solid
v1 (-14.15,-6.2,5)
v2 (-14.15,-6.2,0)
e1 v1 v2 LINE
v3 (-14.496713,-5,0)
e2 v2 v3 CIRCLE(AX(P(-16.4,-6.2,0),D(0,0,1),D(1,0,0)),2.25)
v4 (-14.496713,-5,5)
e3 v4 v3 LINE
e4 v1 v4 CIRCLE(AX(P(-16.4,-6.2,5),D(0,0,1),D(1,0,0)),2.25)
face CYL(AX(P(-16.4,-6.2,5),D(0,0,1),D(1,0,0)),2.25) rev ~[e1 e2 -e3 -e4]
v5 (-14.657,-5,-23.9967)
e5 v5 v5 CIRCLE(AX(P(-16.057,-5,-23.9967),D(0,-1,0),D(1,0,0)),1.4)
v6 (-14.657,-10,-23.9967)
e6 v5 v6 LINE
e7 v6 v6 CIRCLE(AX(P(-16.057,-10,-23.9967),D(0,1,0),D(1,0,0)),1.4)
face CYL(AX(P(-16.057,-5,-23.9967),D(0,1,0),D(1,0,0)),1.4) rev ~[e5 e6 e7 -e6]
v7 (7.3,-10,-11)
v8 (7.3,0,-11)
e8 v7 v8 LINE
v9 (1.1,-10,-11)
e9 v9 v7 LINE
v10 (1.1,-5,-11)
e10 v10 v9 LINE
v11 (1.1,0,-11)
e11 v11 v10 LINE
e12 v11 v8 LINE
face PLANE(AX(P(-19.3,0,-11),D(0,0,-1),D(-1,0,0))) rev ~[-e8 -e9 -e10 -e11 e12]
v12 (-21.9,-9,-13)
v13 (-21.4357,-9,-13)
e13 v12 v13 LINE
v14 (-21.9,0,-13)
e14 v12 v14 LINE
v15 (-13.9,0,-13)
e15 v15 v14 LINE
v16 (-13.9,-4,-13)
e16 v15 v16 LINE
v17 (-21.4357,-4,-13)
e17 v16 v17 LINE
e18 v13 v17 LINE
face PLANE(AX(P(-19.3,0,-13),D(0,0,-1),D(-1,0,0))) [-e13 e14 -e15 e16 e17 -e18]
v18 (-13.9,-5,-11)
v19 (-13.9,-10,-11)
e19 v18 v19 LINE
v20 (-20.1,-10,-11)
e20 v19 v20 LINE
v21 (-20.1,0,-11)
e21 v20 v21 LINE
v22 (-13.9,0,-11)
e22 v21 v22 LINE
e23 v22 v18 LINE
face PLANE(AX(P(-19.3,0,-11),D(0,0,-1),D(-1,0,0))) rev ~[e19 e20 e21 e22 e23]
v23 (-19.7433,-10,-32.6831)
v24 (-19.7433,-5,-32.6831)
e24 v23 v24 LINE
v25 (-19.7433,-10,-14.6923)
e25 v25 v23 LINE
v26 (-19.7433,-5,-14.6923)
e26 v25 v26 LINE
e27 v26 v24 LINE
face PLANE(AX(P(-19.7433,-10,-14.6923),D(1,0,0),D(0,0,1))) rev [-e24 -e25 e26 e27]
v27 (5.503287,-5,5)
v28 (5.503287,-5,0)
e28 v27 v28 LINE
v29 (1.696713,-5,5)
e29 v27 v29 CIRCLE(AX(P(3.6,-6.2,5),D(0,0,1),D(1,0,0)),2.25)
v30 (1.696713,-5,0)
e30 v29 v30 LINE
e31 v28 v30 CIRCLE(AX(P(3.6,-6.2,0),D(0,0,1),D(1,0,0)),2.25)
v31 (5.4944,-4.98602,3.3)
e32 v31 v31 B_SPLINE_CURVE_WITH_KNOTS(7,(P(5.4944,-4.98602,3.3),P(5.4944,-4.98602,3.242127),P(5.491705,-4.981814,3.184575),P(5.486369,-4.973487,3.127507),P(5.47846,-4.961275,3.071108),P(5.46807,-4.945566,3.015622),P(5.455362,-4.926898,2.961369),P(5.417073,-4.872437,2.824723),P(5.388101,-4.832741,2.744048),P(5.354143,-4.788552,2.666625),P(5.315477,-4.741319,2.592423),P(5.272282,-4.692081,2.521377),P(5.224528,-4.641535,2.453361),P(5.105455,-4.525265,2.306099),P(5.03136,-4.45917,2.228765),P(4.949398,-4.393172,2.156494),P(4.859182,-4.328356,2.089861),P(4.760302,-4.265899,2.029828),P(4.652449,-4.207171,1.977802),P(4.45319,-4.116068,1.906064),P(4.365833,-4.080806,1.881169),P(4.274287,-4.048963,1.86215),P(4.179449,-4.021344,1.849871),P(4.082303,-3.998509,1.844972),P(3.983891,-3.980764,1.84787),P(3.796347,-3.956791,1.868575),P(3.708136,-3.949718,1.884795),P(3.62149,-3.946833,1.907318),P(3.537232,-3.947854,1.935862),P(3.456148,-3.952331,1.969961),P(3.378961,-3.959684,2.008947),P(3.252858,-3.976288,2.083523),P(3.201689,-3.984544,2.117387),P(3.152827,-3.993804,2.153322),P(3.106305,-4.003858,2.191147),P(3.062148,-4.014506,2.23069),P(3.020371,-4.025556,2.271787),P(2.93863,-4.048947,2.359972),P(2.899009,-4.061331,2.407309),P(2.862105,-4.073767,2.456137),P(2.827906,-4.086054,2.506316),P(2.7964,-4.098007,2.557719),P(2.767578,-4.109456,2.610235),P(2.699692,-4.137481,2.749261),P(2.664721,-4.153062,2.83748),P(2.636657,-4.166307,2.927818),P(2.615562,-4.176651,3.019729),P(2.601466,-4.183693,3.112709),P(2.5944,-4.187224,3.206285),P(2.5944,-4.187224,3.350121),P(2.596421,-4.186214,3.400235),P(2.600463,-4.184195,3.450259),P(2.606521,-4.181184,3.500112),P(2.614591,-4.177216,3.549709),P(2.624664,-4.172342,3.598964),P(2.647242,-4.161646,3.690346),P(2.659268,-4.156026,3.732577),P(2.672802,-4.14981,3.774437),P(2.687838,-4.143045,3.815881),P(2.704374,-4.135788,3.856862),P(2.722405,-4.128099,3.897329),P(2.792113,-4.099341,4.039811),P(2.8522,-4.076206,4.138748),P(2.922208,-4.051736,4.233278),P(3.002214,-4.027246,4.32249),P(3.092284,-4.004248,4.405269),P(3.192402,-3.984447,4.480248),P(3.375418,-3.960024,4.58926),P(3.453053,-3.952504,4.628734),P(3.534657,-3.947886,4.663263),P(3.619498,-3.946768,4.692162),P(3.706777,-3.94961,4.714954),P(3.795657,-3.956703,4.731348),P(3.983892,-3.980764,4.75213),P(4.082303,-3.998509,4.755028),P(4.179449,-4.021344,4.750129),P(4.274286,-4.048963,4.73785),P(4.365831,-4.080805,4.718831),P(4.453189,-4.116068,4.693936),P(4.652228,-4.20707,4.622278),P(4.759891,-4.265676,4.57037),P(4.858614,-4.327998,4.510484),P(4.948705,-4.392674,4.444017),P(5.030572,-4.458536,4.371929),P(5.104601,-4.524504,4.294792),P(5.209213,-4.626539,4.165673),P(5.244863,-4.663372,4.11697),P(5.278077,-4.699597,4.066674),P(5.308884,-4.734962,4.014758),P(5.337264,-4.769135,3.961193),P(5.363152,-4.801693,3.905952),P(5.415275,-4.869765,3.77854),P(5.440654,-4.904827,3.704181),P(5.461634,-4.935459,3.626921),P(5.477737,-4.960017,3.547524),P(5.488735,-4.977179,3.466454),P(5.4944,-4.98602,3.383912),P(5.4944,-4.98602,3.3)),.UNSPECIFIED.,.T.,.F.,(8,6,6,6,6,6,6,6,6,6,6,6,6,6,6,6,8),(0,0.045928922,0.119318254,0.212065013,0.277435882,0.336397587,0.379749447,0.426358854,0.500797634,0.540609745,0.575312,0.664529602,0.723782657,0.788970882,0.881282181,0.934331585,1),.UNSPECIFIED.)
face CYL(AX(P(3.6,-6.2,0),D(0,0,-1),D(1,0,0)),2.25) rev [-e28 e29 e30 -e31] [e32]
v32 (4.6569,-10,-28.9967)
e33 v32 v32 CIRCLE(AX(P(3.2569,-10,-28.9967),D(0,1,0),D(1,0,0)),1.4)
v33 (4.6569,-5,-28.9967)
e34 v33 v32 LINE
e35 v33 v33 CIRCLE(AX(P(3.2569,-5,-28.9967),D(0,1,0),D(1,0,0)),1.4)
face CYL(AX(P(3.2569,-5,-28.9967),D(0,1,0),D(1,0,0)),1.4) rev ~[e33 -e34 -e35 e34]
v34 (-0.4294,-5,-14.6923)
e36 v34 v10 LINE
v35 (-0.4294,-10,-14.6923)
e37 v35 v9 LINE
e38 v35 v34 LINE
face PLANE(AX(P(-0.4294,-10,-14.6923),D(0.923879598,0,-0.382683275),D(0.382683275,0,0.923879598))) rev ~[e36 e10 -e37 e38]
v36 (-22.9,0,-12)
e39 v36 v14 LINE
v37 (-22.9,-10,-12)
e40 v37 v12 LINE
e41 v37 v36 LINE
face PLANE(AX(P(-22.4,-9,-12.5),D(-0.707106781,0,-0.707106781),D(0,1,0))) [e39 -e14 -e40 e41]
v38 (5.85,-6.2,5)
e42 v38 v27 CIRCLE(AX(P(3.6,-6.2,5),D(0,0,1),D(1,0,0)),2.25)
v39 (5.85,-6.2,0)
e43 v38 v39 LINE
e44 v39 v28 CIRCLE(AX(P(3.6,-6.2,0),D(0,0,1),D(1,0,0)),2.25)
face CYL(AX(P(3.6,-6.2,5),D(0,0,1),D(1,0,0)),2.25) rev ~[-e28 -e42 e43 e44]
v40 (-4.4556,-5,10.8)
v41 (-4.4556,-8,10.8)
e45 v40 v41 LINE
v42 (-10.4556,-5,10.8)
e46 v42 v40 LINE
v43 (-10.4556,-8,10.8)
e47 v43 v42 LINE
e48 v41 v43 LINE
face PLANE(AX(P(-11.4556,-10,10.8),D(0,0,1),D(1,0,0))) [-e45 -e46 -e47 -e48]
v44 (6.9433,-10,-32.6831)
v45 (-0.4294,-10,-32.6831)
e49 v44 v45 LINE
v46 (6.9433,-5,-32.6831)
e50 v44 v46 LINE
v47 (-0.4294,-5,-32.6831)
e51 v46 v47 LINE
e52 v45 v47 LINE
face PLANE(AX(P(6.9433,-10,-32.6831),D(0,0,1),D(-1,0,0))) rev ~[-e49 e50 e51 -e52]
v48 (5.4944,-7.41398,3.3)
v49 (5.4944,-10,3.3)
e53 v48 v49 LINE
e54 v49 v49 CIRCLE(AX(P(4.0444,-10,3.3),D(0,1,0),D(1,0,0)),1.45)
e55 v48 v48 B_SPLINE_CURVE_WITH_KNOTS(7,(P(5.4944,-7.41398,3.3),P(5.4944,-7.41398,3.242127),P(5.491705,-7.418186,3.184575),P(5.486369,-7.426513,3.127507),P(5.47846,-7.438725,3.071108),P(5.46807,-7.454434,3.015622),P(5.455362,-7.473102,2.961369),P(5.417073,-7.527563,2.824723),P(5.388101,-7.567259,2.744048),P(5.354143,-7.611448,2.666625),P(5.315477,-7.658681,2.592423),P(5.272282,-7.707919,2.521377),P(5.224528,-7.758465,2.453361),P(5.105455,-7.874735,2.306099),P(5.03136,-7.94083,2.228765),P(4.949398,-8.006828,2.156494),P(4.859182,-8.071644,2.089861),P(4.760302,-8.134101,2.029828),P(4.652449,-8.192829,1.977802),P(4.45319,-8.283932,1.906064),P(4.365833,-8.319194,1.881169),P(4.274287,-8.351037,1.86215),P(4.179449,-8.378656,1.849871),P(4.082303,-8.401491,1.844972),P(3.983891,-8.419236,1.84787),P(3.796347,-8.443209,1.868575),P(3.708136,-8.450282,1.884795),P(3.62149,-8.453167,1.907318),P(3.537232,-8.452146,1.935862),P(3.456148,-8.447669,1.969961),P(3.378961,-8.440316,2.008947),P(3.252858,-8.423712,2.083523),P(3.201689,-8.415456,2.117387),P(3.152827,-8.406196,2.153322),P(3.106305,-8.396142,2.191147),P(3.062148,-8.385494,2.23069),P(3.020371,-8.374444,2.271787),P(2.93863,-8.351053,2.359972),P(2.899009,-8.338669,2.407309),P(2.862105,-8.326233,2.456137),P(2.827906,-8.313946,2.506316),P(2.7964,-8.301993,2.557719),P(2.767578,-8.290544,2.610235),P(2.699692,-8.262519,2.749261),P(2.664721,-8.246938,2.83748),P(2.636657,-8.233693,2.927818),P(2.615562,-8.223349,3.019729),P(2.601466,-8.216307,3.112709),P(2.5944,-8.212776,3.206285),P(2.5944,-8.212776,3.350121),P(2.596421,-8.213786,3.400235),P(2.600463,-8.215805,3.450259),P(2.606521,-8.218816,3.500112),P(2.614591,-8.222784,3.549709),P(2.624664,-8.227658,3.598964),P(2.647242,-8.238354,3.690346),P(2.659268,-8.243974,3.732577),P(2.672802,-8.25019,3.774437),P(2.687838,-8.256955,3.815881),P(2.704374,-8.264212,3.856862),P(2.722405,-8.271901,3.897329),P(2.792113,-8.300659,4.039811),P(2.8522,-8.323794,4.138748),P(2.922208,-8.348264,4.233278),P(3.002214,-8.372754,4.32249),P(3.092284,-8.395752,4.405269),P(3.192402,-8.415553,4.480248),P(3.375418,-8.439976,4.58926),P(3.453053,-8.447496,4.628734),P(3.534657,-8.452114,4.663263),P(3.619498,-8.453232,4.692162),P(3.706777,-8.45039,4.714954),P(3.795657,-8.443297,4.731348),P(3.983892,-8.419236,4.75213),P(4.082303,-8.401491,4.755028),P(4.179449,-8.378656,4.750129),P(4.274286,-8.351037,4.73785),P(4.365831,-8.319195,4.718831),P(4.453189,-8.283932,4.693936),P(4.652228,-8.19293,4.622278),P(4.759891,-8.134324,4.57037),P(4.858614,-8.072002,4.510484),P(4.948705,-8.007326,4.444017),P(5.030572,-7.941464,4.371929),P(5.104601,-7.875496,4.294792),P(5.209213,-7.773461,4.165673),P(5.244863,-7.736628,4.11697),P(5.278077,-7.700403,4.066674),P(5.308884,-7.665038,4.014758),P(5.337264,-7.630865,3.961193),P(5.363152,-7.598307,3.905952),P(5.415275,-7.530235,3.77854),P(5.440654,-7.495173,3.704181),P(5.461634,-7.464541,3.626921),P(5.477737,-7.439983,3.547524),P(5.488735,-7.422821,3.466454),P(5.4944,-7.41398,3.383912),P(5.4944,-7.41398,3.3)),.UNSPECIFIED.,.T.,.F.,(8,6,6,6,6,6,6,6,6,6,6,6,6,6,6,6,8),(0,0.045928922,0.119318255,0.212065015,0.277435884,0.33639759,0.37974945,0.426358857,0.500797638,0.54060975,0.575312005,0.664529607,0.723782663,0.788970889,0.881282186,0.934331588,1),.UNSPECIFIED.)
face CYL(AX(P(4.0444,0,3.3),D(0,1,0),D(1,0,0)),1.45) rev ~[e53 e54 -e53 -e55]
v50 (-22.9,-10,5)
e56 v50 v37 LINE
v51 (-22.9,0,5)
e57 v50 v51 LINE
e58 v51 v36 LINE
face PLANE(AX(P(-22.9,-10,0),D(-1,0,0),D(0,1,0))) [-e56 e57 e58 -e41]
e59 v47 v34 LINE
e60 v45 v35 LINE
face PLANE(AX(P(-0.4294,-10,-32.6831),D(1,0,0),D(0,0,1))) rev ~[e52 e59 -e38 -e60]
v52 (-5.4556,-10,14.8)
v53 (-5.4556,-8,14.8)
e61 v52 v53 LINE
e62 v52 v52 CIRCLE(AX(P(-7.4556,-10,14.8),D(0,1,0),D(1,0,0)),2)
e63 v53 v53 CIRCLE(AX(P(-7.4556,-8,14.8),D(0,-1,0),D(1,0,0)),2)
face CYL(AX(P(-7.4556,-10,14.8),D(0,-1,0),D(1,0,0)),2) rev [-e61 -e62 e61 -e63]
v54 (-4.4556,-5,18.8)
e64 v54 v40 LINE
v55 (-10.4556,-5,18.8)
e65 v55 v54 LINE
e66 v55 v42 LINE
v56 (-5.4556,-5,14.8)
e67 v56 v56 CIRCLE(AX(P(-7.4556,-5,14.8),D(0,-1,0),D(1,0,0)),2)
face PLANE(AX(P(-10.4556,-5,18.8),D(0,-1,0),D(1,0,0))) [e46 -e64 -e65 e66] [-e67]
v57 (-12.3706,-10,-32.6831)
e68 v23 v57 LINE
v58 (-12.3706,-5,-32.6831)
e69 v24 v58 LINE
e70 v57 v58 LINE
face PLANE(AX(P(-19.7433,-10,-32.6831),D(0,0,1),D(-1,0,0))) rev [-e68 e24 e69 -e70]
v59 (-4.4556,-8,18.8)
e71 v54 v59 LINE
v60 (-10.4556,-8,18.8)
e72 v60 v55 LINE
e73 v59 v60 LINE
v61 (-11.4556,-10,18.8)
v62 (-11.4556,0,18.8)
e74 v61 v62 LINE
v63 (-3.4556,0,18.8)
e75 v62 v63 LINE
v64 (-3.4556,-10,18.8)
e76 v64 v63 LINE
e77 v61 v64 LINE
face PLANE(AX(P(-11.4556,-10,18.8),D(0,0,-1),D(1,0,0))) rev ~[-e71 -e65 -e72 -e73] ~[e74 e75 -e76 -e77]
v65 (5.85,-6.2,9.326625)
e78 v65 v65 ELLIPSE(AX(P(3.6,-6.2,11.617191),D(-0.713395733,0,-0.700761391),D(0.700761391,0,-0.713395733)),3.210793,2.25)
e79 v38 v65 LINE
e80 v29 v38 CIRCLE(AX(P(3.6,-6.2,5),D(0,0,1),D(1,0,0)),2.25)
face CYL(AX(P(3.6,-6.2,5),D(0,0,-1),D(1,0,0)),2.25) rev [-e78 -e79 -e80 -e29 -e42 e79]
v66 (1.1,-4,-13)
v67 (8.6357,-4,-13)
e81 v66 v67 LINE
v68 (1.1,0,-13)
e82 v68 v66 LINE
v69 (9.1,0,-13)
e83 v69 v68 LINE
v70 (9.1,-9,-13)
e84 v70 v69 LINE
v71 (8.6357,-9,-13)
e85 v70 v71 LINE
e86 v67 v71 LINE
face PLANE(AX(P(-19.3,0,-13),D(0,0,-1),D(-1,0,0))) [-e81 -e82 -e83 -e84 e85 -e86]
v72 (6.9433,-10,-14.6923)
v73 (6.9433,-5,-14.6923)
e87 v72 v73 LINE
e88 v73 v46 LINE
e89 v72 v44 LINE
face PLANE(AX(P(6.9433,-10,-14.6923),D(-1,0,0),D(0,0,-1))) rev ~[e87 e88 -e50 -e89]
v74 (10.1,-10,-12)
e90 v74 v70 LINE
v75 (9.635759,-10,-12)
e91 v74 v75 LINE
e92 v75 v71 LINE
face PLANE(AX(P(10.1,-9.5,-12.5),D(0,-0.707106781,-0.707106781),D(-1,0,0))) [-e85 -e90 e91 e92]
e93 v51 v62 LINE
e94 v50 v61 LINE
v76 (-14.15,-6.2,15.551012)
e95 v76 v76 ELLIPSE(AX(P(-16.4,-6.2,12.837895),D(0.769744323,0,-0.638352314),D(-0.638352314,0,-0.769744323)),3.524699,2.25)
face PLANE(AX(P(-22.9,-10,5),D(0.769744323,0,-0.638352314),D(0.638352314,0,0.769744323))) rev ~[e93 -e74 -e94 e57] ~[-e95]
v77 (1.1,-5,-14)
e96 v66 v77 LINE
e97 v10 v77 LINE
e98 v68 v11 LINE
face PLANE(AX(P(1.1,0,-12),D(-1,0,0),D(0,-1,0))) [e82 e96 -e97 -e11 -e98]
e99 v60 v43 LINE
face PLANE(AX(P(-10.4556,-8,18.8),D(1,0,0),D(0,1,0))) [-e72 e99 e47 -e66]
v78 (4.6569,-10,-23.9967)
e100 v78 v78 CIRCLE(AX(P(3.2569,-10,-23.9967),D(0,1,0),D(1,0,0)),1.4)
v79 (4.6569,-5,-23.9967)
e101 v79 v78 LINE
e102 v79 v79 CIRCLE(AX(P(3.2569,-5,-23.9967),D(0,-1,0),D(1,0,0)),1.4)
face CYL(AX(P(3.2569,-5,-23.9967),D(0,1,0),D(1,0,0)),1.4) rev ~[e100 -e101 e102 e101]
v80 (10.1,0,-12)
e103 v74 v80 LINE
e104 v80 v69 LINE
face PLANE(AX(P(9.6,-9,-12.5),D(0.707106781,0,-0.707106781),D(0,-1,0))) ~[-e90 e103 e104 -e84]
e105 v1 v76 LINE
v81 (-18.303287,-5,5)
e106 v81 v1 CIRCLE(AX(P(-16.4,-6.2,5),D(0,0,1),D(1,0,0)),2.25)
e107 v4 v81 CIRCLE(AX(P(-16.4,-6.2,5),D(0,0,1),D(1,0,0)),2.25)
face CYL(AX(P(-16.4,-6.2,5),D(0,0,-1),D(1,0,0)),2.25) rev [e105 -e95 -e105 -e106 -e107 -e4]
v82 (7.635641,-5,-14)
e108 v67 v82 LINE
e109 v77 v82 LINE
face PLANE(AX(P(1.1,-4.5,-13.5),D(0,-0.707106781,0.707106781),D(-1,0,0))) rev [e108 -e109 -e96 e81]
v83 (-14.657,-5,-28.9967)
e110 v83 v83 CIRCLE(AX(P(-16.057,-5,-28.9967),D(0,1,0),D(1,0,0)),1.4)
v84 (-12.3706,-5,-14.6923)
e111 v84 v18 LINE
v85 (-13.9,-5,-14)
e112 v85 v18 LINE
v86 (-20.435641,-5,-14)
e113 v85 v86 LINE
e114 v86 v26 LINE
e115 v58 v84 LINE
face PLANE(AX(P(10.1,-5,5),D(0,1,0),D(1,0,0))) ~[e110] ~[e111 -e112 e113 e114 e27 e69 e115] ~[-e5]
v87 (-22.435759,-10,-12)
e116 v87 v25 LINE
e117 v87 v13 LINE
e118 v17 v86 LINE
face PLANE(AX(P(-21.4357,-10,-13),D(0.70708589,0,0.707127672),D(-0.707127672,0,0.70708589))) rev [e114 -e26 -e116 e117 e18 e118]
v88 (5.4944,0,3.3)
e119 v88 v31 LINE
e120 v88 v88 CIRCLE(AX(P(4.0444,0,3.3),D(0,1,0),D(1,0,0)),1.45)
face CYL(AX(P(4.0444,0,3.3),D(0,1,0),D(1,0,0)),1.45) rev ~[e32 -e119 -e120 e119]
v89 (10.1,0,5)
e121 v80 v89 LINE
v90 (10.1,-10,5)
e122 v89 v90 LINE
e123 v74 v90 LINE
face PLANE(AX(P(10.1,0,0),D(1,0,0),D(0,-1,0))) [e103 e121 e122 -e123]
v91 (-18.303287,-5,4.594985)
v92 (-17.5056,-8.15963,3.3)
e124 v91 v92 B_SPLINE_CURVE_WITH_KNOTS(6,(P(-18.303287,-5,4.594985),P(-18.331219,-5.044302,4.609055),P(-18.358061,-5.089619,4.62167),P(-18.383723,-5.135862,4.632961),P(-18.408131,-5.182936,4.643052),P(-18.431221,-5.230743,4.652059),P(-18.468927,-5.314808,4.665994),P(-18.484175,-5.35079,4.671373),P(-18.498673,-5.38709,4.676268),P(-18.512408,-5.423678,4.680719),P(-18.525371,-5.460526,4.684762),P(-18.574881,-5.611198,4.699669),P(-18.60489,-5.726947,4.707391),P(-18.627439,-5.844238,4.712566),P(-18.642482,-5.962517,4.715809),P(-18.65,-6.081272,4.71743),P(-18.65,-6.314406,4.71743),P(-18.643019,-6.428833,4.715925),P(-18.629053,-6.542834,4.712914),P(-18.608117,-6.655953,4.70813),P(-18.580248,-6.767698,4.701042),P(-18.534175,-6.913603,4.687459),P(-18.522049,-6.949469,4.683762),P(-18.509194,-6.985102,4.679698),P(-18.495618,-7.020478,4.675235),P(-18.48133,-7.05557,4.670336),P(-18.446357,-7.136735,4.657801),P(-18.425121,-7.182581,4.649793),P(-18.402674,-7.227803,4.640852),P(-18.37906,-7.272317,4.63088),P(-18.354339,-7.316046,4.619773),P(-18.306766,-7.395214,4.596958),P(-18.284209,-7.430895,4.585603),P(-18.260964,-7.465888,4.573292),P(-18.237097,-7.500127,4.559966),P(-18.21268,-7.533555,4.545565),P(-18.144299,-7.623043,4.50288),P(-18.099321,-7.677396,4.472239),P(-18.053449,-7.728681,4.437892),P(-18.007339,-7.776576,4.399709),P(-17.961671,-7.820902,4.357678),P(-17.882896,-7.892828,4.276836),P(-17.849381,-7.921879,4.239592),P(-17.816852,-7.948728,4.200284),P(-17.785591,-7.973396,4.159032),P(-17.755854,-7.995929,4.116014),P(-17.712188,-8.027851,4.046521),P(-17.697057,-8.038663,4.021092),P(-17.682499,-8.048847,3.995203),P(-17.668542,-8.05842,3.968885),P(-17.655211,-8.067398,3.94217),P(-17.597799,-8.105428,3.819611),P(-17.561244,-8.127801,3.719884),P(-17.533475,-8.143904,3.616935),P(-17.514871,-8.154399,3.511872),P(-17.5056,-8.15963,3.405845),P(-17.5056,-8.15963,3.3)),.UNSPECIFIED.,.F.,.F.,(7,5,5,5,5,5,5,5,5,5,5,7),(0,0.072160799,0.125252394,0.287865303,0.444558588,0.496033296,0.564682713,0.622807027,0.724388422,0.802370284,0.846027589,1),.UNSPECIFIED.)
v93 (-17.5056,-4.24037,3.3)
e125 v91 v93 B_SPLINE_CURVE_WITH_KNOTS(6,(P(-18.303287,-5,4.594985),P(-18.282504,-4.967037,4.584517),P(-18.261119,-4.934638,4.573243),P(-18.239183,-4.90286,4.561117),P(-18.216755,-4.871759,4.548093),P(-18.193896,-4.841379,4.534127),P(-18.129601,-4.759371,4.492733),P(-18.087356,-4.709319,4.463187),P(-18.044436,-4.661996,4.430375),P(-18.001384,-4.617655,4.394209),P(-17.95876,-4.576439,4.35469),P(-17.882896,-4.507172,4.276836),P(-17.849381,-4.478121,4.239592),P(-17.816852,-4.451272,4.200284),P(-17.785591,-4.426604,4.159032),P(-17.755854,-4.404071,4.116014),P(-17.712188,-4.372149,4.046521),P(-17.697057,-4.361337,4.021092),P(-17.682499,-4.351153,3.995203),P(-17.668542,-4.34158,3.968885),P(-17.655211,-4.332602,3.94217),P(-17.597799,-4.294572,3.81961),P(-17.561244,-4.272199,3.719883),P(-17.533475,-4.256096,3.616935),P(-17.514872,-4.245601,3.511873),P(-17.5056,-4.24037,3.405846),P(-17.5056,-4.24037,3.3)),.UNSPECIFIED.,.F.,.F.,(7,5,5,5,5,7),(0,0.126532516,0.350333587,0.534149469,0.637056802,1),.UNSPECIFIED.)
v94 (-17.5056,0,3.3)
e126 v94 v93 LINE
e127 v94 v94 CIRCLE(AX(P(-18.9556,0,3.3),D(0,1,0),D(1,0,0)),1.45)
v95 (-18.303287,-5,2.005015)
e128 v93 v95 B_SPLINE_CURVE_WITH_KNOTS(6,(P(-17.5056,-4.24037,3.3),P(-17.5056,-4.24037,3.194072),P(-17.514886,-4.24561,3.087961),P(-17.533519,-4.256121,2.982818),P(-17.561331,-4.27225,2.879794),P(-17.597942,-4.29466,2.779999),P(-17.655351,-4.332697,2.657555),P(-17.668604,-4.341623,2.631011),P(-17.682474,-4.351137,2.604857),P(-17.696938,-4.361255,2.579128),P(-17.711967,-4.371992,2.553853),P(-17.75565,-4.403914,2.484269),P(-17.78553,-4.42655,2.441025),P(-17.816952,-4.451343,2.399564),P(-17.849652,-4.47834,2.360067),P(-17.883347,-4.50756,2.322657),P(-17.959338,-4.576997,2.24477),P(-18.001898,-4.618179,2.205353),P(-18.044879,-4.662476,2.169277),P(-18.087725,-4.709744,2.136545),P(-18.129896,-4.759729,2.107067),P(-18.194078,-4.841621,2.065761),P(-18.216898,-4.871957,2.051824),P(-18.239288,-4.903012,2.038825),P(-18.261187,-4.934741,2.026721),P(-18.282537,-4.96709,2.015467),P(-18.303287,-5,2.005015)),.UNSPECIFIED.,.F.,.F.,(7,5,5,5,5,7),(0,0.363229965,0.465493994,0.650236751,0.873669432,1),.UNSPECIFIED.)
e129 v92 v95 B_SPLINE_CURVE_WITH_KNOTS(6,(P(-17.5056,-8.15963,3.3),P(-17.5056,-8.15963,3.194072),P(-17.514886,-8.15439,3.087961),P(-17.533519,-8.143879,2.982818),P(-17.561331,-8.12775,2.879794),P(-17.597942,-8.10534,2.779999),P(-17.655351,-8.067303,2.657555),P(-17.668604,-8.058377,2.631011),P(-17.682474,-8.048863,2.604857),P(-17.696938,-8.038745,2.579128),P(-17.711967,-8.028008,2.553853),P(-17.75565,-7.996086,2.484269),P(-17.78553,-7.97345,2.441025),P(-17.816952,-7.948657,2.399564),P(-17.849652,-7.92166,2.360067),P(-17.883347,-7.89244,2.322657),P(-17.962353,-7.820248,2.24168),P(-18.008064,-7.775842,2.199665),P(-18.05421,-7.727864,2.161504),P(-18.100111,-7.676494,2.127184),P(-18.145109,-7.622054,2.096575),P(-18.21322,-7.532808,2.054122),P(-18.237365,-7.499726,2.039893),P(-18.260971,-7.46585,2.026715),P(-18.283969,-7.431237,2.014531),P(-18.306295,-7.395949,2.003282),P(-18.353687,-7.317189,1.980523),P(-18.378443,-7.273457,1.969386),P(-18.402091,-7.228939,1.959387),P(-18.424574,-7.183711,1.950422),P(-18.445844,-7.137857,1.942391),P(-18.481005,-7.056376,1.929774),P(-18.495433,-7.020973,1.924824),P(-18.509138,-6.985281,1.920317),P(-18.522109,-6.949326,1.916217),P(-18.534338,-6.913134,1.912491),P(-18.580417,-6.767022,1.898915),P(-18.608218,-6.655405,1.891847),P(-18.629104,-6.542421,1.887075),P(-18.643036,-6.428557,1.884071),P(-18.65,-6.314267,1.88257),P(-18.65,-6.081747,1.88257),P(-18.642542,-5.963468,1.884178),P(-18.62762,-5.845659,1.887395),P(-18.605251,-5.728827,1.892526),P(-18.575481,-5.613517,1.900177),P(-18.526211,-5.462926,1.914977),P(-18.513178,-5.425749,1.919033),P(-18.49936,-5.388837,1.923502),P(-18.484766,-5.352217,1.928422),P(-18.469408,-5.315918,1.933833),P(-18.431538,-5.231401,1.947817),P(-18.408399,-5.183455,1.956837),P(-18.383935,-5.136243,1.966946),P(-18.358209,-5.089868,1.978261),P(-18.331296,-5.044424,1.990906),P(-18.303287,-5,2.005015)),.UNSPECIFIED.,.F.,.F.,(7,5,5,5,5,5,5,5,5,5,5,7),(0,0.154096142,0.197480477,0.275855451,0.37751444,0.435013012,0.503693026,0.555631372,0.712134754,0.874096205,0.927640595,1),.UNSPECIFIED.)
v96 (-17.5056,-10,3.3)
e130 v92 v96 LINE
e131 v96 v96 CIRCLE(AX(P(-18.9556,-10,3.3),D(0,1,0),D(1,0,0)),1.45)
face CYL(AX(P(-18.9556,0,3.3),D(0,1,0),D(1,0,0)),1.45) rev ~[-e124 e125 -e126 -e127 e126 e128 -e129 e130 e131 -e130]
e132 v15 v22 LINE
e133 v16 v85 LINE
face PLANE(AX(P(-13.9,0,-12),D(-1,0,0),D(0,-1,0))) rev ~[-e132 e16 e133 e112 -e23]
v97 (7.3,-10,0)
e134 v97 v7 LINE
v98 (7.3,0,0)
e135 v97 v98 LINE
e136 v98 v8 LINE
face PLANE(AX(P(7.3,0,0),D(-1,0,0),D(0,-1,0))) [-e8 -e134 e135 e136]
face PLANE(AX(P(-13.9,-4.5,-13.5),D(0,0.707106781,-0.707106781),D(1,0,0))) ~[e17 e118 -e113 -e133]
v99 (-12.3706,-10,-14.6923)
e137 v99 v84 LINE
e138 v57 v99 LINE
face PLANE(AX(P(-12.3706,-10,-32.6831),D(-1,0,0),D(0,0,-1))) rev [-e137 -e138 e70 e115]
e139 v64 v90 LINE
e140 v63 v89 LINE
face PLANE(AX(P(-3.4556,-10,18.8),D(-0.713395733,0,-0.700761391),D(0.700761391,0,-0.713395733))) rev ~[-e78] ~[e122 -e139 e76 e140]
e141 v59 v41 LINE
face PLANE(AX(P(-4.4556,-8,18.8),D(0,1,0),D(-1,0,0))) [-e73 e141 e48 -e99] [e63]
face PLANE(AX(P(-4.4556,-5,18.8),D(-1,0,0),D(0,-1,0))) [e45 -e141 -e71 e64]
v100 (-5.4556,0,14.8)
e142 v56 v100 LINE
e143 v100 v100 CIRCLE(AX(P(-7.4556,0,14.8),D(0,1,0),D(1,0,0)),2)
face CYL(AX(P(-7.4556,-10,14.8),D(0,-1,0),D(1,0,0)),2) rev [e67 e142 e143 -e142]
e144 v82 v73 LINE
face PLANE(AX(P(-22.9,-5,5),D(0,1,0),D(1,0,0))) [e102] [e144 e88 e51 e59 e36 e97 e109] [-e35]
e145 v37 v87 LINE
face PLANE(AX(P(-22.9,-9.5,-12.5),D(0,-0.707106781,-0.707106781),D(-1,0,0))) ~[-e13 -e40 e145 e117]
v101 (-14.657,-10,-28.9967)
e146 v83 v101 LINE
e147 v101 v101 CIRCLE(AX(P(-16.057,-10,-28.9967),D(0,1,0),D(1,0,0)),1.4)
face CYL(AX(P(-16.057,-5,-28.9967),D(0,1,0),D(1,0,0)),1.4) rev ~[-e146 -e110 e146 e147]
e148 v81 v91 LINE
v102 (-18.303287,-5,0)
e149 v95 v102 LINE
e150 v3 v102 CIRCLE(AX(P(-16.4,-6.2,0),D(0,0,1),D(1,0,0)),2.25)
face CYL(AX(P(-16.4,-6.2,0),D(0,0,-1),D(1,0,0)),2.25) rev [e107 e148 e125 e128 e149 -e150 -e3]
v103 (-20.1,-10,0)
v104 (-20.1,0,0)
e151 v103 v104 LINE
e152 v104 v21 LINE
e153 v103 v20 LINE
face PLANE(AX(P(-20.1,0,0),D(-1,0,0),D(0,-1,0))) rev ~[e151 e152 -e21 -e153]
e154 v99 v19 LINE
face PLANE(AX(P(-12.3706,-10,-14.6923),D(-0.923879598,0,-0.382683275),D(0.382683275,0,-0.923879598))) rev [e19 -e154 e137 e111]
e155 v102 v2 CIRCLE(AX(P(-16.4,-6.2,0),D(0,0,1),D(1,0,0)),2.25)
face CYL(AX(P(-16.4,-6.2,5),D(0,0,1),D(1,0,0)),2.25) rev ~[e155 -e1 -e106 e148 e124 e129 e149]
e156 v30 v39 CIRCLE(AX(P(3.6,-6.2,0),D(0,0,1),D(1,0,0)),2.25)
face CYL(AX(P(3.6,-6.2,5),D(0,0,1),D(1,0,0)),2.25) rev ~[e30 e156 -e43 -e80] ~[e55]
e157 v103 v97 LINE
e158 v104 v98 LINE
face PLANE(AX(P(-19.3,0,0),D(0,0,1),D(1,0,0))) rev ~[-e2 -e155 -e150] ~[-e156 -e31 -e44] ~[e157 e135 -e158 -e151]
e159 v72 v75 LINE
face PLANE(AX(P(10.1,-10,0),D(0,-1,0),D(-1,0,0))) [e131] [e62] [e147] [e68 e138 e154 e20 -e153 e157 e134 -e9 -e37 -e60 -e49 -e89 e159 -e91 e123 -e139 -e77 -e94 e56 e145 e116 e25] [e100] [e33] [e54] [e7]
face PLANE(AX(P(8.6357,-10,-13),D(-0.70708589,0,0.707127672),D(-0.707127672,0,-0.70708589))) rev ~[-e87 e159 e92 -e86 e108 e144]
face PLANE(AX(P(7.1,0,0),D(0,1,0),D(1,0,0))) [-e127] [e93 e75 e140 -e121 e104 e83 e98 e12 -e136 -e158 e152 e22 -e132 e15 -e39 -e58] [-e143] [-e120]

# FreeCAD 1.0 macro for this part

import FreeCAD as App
import Part
import Sketcher
Q = App.Units.Quantity


def edges_at(feature, points):
    """Names of the edges that pass closest to the given points."""
    edges = feature.Shape.Edges
    near = lambda p: min(range(len(edges)), key=lambda i: edges[i].distToShape(Part.Vertex(*p))[0])
    return sorted({f"Edge{near(p) + 1}" for p in points})


def add_polygon(sketch, points):
    """Adds a closed chain of lines whose ends are joined by coincident constraints."""
    first, n = sketch.GeometryCount, len(points)
    for a, b in zip(points, points[1:] + points[:1]):
        sketch.addGeometry(Part.LineSegment(App.Vector(*a, 0), App.Vector(*b, 0)), False)
    for i in range(n):
        sketch.addConstraint(Sketcher.Constraint("Coincident", first + i, 2, first + (i + 1) % n, 1))

doc = App.newDocument("Part")
body = doc.addObject("PartDesign::Body", "Body")

sketch1 = doc.addObject("Sketcher::SketchObject", "Sketch")
body.addObject(sketch1)
sketch1.AttachmentSupport = (doc.XY_Plane, [""])
sketch1.MapMode = "FlatFace"
add_polygon(sketch1, [(10.1, -10), (10.1, 0), (-22.9, 0), (-22.9, -10)])
sketch1.addGeometry(Part.Circle(App.Vector(3.6, -6.2, 0), App.Vector(0, 0, 1), 2.2), False)
sketch1.addGeometry(Part.Circle(App.Vector(-16.4, -6.2, 0), App.Vector(0, 0, 1), 2.2), False)
sketch1.addConstraint(Sketcher.Constraint("Vertical", 0))
sketch1.addConstraint(Sketcher.Constraint("Horizontal", 1))
sketch1.addConstraint(Sketcher.Constraint("Vertical", 2))
sketch1.addConstraint(Sketcher.Constraint("Horizontal", 3))
sketch1.addConstraint(Sketcher.Constraint("Equal", 4, 5))
sketch1.addConstraint(Sketcher.Constraint("PointOnObject", 0, 2, -1))
sketch1.addConstraint(Sketcher.Constraint("Horizontal", 4, 3, 5, 3))
sketch1.addConstraint(Sketcher.Constraint("DistanceY", 0, 1, 0, 2, 10.0))
sketch1.addConstraint(Sketcher.Constraint("Diameter", 4, 4.5))
sketch1.addConstraint(Sketcher.Constraint("DistanceX", 1, 2, 1, 1, 33.0))
sketch1.addConstraint(Sketcher.Constraint("DistanceX", 5, 3, 4, 3, 20.0))
sketch1.addConstraint(Sketcher.Constraint("DistanceX", -1, 1, 4, 3, 3.6))
sketch1.addConstraint(Sketcher.Constraint("DistanceY", 4, 3, -1, 1, 6.2))
sketch1.addConstraint(Sketcher.Constraint("DistanceX", -1, 1, 0, 2, 10.1))
pad1 = doc.addObject("PartDesign::Pad", "Pad")
body.addObject(pad1)
pad1.Profile = sketch1
pad1.Length = 5

sketch2 = doc.addObject("Sketcher::SketchObject", "Sketch001")
body.addObject(sketch2)
sketch2.AttachmentSupport = (doc.XY_Plane, [""])
sketch2.MapMode = "FlatFace"
add_polygon(sketch2, [(-20.1, -10), (-22.9, -10), (-22.9, 0), (-20.1, 0)])
add_polygon(sketch2, [(10.1, -10), (7.3, -10), (7.3, 0), (10.1, 0)])
sketch2.addConstraint(Sketcher.Constraint("Horizontal", 0))
sketch2.addConstraint(Sketcher.Constraint("Vertical", 1))
sketch2.addConstraint(Sketcher.Constraint("Horizontal", 2))
sketch2.addConstraint(Sketcher.Constraint("Vertical", 3))
sketch2.addConstraint(Sketcher.Constraint("Horizontal", 4))
sketch2.addConstraint(Sketcher.Constraint("Vertical", 5))
sketch2.addConstraint(Sketcher.Constraint("Horizontal", 6))
sketch2.addConstraint(Sketcher.Constraint("Vertical", 7))
sketch2.addConstraint(Sketcher.Constraint("PointOnObject", 1, 2, -1))
sketch2.addConstraint(Sketcher.Constraint("PointOnObject", 5, 2, -1))
sketch2.addConstraint(Sketcher.Constraint("Horizontal", 3, 2, 4, 2))
sketch2.addConstraint(Sketcher.Constraint("Equal", 2, 4))
sketch2.addConstraint(Sketcher.Constraint("DistanceX", 0, 2, 0, 1, 2.8))
sketch2.addConstraint(Sketcher.Constraint("DistanceY", 1, 1, 1, 2, 10.0))
sketch2.addConstraint(Sketcher.Constraint("DistanceX", 1, 2, 6, 2, 33.0))
sketch2.addConstraint(Sketcher.Constraint("DistanceX", 0, 2, -1, 1, 22.9))
pad2 = doc.addObject("PartDesign::Pad", "Pad001")
body.addObject(pad2)
pad2.Profile = sketch2
pad2.Length = 12
pad2.Reversed = True

sketch3 = doc.addObject("Sketcher::SketchObject", "Sketch002")
body.addObject(sketch3)
sketch3.AttachmentSupport = (doc.XY_Plane, [""])
sketch3.MapMode = "FlatFace"
sketch3.AttachmentOffset = App.Placement(App.Vector(0, 0, -12), App.Rotation())
add_polygon(sketch3, [(10, 0), (10, -10), (1, -10), (1, 0)])
add_polygon(sketch3, [(-14, 0), (-14, -10), (-23, -10), (-23, 0)])
sketch3.addConstraint(Sketcher.Constraint("Vertical", 0))
sketch3.addConstraint(Sketcher.Constraint("Horizontal", 1))
sketch3.addConstraint(Sketcher.Constraint("Vertical", 2))
sketch3.addConstraint(Sketcher.Constraint("Horizontal", 3))
sketch3.addConstraint(Sketcher.Constraint("Vertical", 4))
sketch3.addConstraint(Sketcher.Constraint("Horizontal", 5))
sketch3.addConstraint(Sketcher.Constraint("Vertical", 6))
sketch3.addConstraint(Sketcher.Constraint("Horizontal", 7))
sketch3.addConstraint(Sketcher.Constraint("PointOnObject", 2, 2, -1))
sketch3.addConstraint(Sketcher.Constraint("PointOnObject", 6, 2, -1))
sketch3.addConstraint(Sketcher.Constraint("Horizontal", 1, 2, 4, 2))
sketch3.addConstraint(Sketcher.Constraint("Equal", 3, 5))
sketch3.addConstraint(Sketcher.Constraint("DistanceX", 1, 2, 1, 1, 9.0))
sketch3.addConstraint(Sketcher.Constraint("DistanceY", 0, 2, 0, 1, 10.0))
sketch3.addConstraint(Sketcher.Constraint("DistanceX", 4, 2, 1, 2, 15.0))
sketch3.addConstraint(Sketcher.Constraint("DistanceX", -1, 1, 0, 2, 10.1))
pad3 = doc.addObject("PartDesign::Pad", "Pad002")
body.addObject(pad3)
pad3.Profile = sketch3
pad3.Type = "TwoLengths"
pad3.Length = 1
pad3.Length2 = 1
pad3.Reversed = True

sketch4 = doc.addObject("Sketcher::SketchObject", "Sketch003")
body.addObject(sketch4)
sketch4.AttachmentSupport = (doc.XZ_Plane, [""])
sketch4.MapMode = "FlatFace"
sketch4.AttachmentOffset = App.Placement(App.Vector(0, 0, 10), App.Rotation())
add_polygon(sketch4, [(-22.9, -13), (-22.9, 5), (10.1, 5), (10.1, -13), (8.6, -13), (6.9, -14.7), (6.9, -32.7), (-0.4, -32.7), (-0.4, -14.7), (1.1, -11), (7.3, -11), (7.3, 0), (-20.1, 0), (-20.1, -11), (-13.9, -11), (-13.9, -13)])
sketch4.addConstraint(Sketcher.Constraint("Vertical", 0))
sketch4.addConstraint(Sketcher.Constraint("Horizontal", 1))
sketch4.addConstraint(Sketcher.Constraint("Vertical", 2))
sketch4.addConstraint(Sketcher.Constraint("Horizontal", 3))
sketch4.addConstraint(Sketcher.Constraint("Vertical", 5))
sketch4.addConstraint(Sketcher.Constraint("Horizontal", 6))
sketch4.addConstraint(Sketcher.Constraint("Vertical", 7))
sketch4.addConstraint(Sketcher.Constraint("Horizontal", 9))
sketch4.addConstraint(Sketcher.Constraint("Vertical", 10))
sketch4.addConstraint(Sketcher.Constraint("Horizontal", 11))
sketch4.addConstraint(Sketcher.Constraint("Vertical", 12))
sketch4.addConstraint(Sketcher.Constraint("Horizontal", 13))
sketch4.addConstraint(Sketcher.Constraint("Vertical", 14))
sketch4.addConstraint(Sketcher.Constraint("Horizontal", 15))
sketch4.addConstraint(Sketcher.Constraint("PointOnObject", 10, 2, -1))
sketch4.addConstraint(Sketcher.Constraint("Horizontal", 4, 2, 7, 2))
sketch4.addConstraint(Sketcher.Constraint("Horizontal", 9, 2, 12, 2))
sketch4.addConstraint(Sketcher.Constraint("Horizontal", 3, 2, 14, 2))
sketch4.addConstraint(Sketcher.Constraint("Equal", 9, 13))
sketch4.addConstraint(Sketcher.Constraint("DistanceX", 1, 1, 1, 2, 33.0))
sketch4.addConstraint(Sketcher.Constraint("DistanceX", 15, 2, 15, 1, 9.0))
sketch4.addConstraint(Sketcher.Constraint("DistanceY", 0, 1, 0, 2, 18.0))
sketch4.addConstraint(Sketcher.Constraint("DistanceY", 10, 1, 10, 2, 11.0))
sketch4.addConstraint(Sketcher.Constraint("DistanceY", 14, 2, 14, 1, 2.0))
sketch4.addConstraint(Sketcher.Constraint("DistanceX", 9, 1, 9, 2, 6.2))
sketch4.addConstraint(Sketcher.Constraint("DistanceX", 11, 2, 11, 1, 27.4))
sketch4.addConstraint(Sketcher.Constraint("Angle", 8, Q("67.5 deg")))
sketch4.addConstraint(Sketcher.Constraint("DistanceX", 0, 2, -1, 1, 22.9))
sketch4.addConstraint(Sketcher.Constraint("DistanceX", 3, 2, 3, 1, 1.4643))
sketch4.addConstraint(Sketcher.Constraint("DistanceX", 6, 2, 6, 1, 7.3727))
sketch4.addConstraint(Sketcher.Constraint("DistanceY", 5, 2, 5, 1, 17.9908))
sketch4.addConstraint(Sketcher.Constraint("DistanceY", 5, 2, -1, 1, 32.683))
pad4 = doc.addObject("PartDesign::Pad", "Pad003")
body.addObject(pad4)
pad4.Profile = sketch4
pad4.Length = 5
pad4.Reversed = True
doc.recompute()

datumplane = doc.addObject("PartDesign::Plane", "DatumPlane")
body.addObject(datumplane)
datumplane.AttachmentSupport = (doc.YZ_Plane, [""])
datumplane.MapMode = "FlatFace"
datumplane.AttachmentOffset = App.Placement(App.Vector(0, 0, -6.4), App.Rotation())
mirrored = doc.addObject("PartDesign::Mirrored", "Mirrored")
body.addObject(mirrored)
mirrored.Originals = [pad4]
mirrored.MirrorPlane = (datumplane, [""])
body.Tip = mirrored
doc.recompute()

chamfer = doc.addObject("PartDesign::Chamfer", "Chamfer")
body.addObject(chamfer)
chamfer.Base = (mirrored, edges_at(mirrored, [
    (9.368, -10, -13),
    (-22.168, -10, -13),
    (-17.668, -5, -13),
    (4.868, -5, -13),
]))
chamfer.Size = 1

sketch5 = doc.addObject("Sketcher::SketchObject", "Sketch004")
body.addObject(sketch5)
sketch5.AttachmentSupport = (doc.XZ_Plane, [""])
sketch5.MapMode = "FlatFace"
sketch5.AttachmentOffset = App.Placement(App.Vector(0, 0, 5), App.Rotation())
sketch5.addGeometry(Part.Circle(App.Vector(3.3, -24, 0), App.Vector(0, 0, 1), 1.4), False)
sketch5.addGeometry(Part.Circle(App.Vector(-16.1, -24, 0), App.Vector(0, 0, 1), 1.4), False)
sketch5.addGeometry(Part.Circle(App.Vector(3.3, -29, 0), App.Vector(0, 0, 1), 1.4), False)
sketch5.addGeometry(Part.Circle(App.Vector(-16.1, -29, 0), App.Vector(0, 0, 1), 1.4), False)
sketch5.addConstraint(Sketcher.Constraint("Equal", 0, 1))
sketch5.addConstraint(Sketcher.Constraint("Equal", 1, 2))
sketch5.addConstraint(Sketcher.Constraint("Equal", 2, 3))
sketch5.addConstraint(Sketcher.Constraint("Horizontal", 0, 3, 1, 3))
sketch5.addConstraint(Sketcher.Constraint("Horizontal", 2, 3, 3, 3))
sketch5.addConstraint(Sketcher.Constraint("Vertical", 0, 3, 2, 3))
sketch5.addConstraint(Sketcher.Constraint("Vertical", 1, 3, 3, 3))
sketch5.addConstraint(Sketcher.Constraint("Diameter", 0, 2.8))
sketch5.addConstraint(Sketcher.Constraint("DistanceY", 2, 3, 0, 3, 5.0))
sketch5.addConstraint(Sketcher.Constraint("DistanceX", -1, 1, 0, 3, 3.257))
sketch5.addConstraint(Sketcher.Constraint("DistanceX", 1, 3, -1, 1, 16.057))
sketch5.addConstraint(Sketcher.Constraint("DistanceY", 0, 3, -1, 1, 23.9967))
pocket1 = doc.addObject("PartDesign::Pocket", "Pocket")
body.addObject(pocket1)
pocket1.Profile = sketch5
pocket1.Type = "ThroughAll"
pocket1.Reversed = True

sketch6 = doc.addObject("Sketcher::SketchObject", "Sketch005")
body.addObject(sketch6)
sketch6.AttachmentSupport = (doc.XZ_Plane, [""])
sketch6.MapMode = "FlatFace"
sketch6.AttachmentOffset = App.Placement(App.Vector(0, 0, 10), App.Rotation())
add_polygon(sketch6, [(10.1, 5), (-22.9, 5), (-11.5, 18.8), (-3.5, 18.8)])
sketch6.addGeometry(Part.Circle(App.Vector(-7.5, 14.8, 0), App.Vector(0, 0, 1), 2), False)
sketch6.addConstraint(Sketcher.Constraint("Horizontal", 0))
sketch6.addConstraint(Sketcher.Constraint("Horizontal", 2))
sketch6.addConstraint(Sketcher.Constraint("Diameter", 4, 4.0))
sketch6.addConstraint(Sketcher.Constraint("DistanceX", 1, 2, 4, 3, 4.0))
sketch6.addConstraint(Sketcher.Constraint("DistanceY", 4, 3, 1, 2, 4.0))
sketch6.addConstraint(Sketcher.Constraint("DistanceX", 4, 3, 2, 2, 4.0))
sketch6.addConstraint(Sketcher.Constraint("DistanceX", 0, 2, 0, 1, 33.0))
sketch6.addConstraint(Sketcher.Constraint("DistanceY", -1, 1, 0, 2, 5.0))
sketch6.addConstraint(Sketcher.Constraint("DistanceY", -1, 1, 4, 3, 14.8))
sketch6.addConstraint(Sketcher.Constraint("DistanceX", 0, 2, -1, 1, 22.9))
sketch6.addConstraint(Sketcher.Constraint("Angle", 1, Q("50.331 deg")))
pad5 = doc.addObject("PartDesign::Pad", "Pad004")
body.addObject(pad5)
pad5.Profile = sketch6
pad5.Length = 10
pad5.Reversed = True

sketch7 = doc.addObject("Sketcher::SketchObject", "Sketch006")
body.addObject(sketch7)
sketch7.AttachmentSupport = (doc.XY_Plane, [""])
sketch7.MapMode = "FlatFace"
sketch7.AttachmentOffset = App.Placement(App.Vector(0, 0, 5), App.Rotation())
sketch7.addGeometry(Part.Circle(App.Vector(-16.4, -6.2, 0), App.Vector(0, 0, 1), 2.2), False)
sketch7.addGeometry(Part.Circle(App.Vector(3.6, -6.2, 0), App.Vector(0, 0, 1), 2.2), False)
sketch7.addConstraint(Sketcher.Constraint("Equal", 0, 1))
sketch7.addConstraint(Sketcher.Constraint("Horizontal", 0, 3, 1, 3))
sketch7.addConstraint(Sketcher.Constraint("Diameter", 0, 4.5))
sketch7.addConstraint(Sketcher.Constraint("DistanceX", 0, 3, 1, 3, 20.0))
sketch7.addConstraint(Sketcher.Constraint("DistanceX", 0, 3, -1, 1, 16.4))
sketch7.addConstraint(Sketcher.Constraint("DistanceY", 0, 3, -1, 1, 6.2))
pocket2 = doc.addObject("PartDesign::Pocket", "Pocket001")
body.addObject(pocket2)
pocket2.Profile = sketch7
pocket2.Length = 5

sketch8 = doc.addObject("Sketcher::SketchObject", "Sketch007")
body.addObject(sketch8)
sketch8.AttachmentSupport = (doc.XY_Plane, [""])
sketch8.MapMode = "FlatFace"
sketch8.AttachmentOffset = App.Placement(App.Vector(0, 0, 18.8), App.Rotation())
add_polygon(sketch8, [(-4.5, -5), (-10.5, -5), (-10.5, -8), (-4.5, -8)])
sketch8.addConstraint(Sketcher.Constraint("Horizontal", 0))
sketch8.addConstraint(Sketcher.Constraint("Vertical", 1))
sketch8.addConstraint(Sketcher.Constraint("Horizontal", 2))
sketch8.addConstraint(Sketcher.Constraint("Vertical", 3))
sketch8.addConstraint(Sketcher.Constraint("DistanceX", 0, 2, 0, 1, 6.0))
sketch8.addConstraint(Sketcher.Constraint("DistanceY", 1, 2, 1, 1, 3.0))
sketch8.addConstraint(Sketcher.Constraint("DistanceY", 0, 2, -1, 1, 5.0))
sketch8.addConstraint(Sketcher.Constraint("DistanceX", 0, 2, -1, 1, 10.4556))
pocket3 = doc.addObject("PartDesign::Pocket", "Pocket002")
body.addObject(pocket3)
pocket3.Profile = sketch8
pocket3.Length = 8

sketch9 = doc.addObject("Sketcher::SketchObject", "Sketch008")
body.addObject(sketch9)
sketch9.AttachmentSupport = (doc.XY_Plane, [""])
sketch9.MapMode = "FlatFace"
sketch9.AttachmentOffset = App.Placement(App.Vector(0, 0, 5), App.Rotation())
sketch9.addGeometry(Part.Circle(App.Vector(-16.4, -6.2, 0), App.Vector(0, 0, 1), 2.2), False)
sketch9.addGeometry(Part.Circle(App.Vector(3.6, -6.2, 0), App.Vector(0, 0, 1), 2.2), False)
sketch9.addConstraint(Sketcher.Constraint("Equal", 0, 1))
sketch9.addConstraint(Sketcher.Constraint("Horizontal", 0, 3, 1, 3))
sketch9.addConstraint(Sketcher.Constraint("Diameter", 0, 4.5))
sketch9.addConstraint(Sketcher.Constraint("DistanceX", 0, 3, 1, 3, 20.0))
sketch9.addConstraint(Sketcher.Constraint("DistanceX", 0, 3, -1, 1, 16.4))
sketch9.addConstraint(Sketcher.Constraint("DistanceY", 0, 3, -1, 1, 6.2))
pocket4 = doc.addObject("PartDesign::Pocket", "Pocket003")
body.addObject(pocket4)
pocket4.Profile = sketch9
pocket4.Type = "ThroughAll"
pocket4.Reversed = True
doc.recompute()

chamfer2 = doc.addObject("PartDesign::Chamfer", "Chamfer001")
body.addObject(chamfer2)
chamfer2.Base = (pocket4, edges_at(pocket4, [(10.1, -4.5, -13), (-22.9, -4.5, -13)]))
chamfer2.Size = 1

sketch10 = doc.addObject("Sketcher::SketchObject", "Sketch009")
body.addObject(sketch10)
sketch10.AttachmentSupport = (doc.XZ_Plane, [""])
sketch10.MapMode = "FlatFace"
sketch10.addGeometry(Part.Circle(App.Vector(-19, 3.3, 0), App.Vector(0, 0, 1), 1.4), False)
sketch10.addGeometry(Part.Circle(App.Vector(4, 3.3, 0), App.Vector(0, 0, 1), 1.4), False)
sketch10.addConstraint(Sketcher.Constraint("Equal", 0, 1))
sketch10.addConstraint(Sketcher.Constraint("Horizontal", 0, 3, 1, 3))
sketch10.addConstraint(Sketcher.Constraint("Diameter", 0, 2.9))
sketch10.addConstraint(Sketcher.Constraint("DistanceX", 0, 3, 1, 3, 23.0))
sketch10.addConstraint(Sketcher.Constraint("DistanceY", -1, 1, 0, 3, 3.3))
sketch10.addConstraint(Sketcher.Constraint("DistanceX", 0, 3, -1, 1, 18.9556))
pocket5 = doc.addObject("PartDesign::Pocket", "Pocket004")
body.addObject(pocket5)
pocket5.Profile = sketch10
pocket5.Type = "ThroughAll"
pocket5.Reversed = True

doc.recompute()
